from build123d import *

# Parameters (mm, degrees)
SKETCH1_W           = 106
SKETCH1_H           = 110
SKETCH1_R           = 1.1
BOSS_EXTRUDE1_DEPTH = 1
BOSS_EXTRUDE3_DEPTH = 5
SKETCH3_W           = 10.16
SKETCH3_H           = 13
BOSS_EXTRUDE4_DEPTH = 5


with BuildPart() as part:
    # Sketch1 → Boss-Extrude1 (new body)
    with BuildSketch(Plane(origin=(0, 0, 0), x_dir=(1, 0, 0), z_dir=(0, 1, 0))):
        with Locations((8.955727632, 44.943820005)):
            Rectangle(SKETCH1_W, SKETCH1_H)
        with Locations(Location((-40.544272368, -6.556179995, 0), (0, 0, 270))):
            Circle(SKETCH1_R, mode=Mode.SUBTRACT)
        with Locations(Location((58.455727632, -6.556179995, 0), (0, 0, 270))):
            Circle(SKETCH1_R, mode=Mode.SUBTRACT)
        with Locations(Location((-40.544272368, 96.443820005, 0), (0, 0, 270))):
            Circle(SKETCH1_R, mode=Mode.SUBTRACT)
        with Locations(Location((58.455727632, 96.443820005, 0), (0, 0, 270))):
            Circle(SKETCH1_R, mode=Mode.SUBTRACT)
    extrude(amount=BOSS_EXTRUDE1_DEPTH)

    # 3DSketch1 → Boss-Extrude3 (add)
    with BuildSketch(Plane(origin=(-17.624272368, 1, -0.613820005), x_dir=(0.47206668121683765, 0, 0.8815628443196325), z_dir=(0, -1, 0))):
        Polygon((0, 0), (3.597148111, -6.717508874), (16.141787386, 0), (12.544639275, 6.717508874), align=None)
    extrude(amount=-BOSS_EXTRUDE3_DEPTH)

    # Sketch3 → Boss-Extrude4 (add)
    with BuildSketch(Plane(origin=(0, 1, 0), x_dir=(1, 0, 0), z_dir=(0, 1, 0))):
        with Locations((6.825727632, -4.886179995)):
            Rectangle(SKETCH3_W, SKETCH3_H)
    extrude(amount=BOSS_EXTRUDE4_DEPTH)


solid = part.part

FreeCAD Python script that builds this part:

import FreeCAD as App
import Part
import Sketcher
from FreeCAD import Vector
Q = App.Units.Quantity

doc = App.newDocument("Part")
body = doc.addObject("PartDesign::Body", "Body")

sketch1 = body.newObject("Sketcher::SketchObject", "Sketch")
sketch1.AttachmentSupport = (doc.getObject("XZ_Plane"), [""])
sketch1.MapMode = "FlatFace"
sketch1.addGeometry([
    Part.LineSegment(Vector(-44, -99.9, 0), Vector(-44, 10.1, 0)),
    Part.LineSegment(Vector(-44, 10.1, 0), Vector(62, 10.1, 0)),
    Part.LineSegment(Vector(62, 10.1, 0), Vector(62, -99.9, 0)),
    Part.LineSegment(Vector(62, -99.9, 0), Vector(-44, -99.9, 0)),
    Part.Circle(Vector(-40.5, 6.6, 0), Vector(0, 0, 1), 1.1),
    Part.Circle(Vector(58.5, 6.6, 0), Vector(0, 0, 1), 1.1),
    Part.Circle(Vector(-40.5, -96.4, 0), Vector(0, 0, 1), 1.1),
    Part.Circle(Vector(58.5, -96.4, 0), Vector(0, 0, 1), 1.1),
], False)
sketch1.addConstraint([
    Sketcher.Constraint("Coincident", 0, 2, 1, 1),
    Sketcher.Constraint("Coincident", 1, 2, 2, 1),
    Sketcher.Constraint("Coincident", 2, 2, 3, 1),
    Sketcher.Constraint("Coincident", 3, 2, 0, 1),
    Sketcher.Constraint("Vertical", 0),
    Sketcher.Constraint("Horizontal", 1),
    Sketcher.Constraint("Vertical", 2),
    Sketcher.Constraint("Horizontal", 3),
    Sketcher.Constraint("Equal", 4, 5),
    Sketcher.Constraint("Equal", 5, 6),
    Sketcher.Constraint("Equal", 6, 7),
    Sketcher.Constraint("Horizontal", 4, 3, 5, 3),
    Sketcher.Constraint("Horizontal", 6, 3, 7, 3),
    Sketcher.Constraint("Vertical", 4, 3, 6, 3),
    Sketcher.Constraint("Vertical", 5, 3, 7, 3),
    Sketcher.Constraint("Diameter", 4, Q("2.2 mm")),
    Sketcher.Constraint("DistanceX", 1, 1, 1, 2, Q("106 mm")),
    Sketcher.Constraint("DistanceY", 0, 1, 0, 2, Q("110 mm")),
    Sketcher.Constraint("DistanceX", 4, 3, 5, 3, Q("99 mm")),
    Sketcher.Constraint("DistanceY", 6, 3, 4, 3, Q("103 mm")),
    Sketcher.Constraint("DistanceX", 0, 2, 4, 3, Q("3.5 mm")),
    Sketcher.Constraint("DistanceY", 4, 3, 0, 2, Q("3.5 mm")),
    Sketcher.Constraint("DistanceY", -1, 1, 4, 3, Q("6.55618 mm")),
    Sketcher.Constraint("DistanceX", 4, 3, -1, 1, Q("40.544272 mm")),
])
pad1 = body.newObject("PartDesign::Pad", "Pad")
pad1.Profile = sketch1
pad1.Length = 1
pad1.Reversed = True

sketch2 = body.newObject("Sketcher::SketchObject", "Sketch001")
sketch2.AttachmentSupport = (doc.getObject("XZ_Plane"), [""])
sketch2.MapMode = "FlatFace"
sketch2.AttachmentOffset = App.Placement(Vector(0, 0, -1), App.Rotation())
sketch2.addGeometry([
    Part.LineSegment(Vector(-18, -1, 0), Vector(-10, -1, 0)),
    Part.LineSegment(Vector(-10, -1, 0), Vector(-10, 14, 0)),
    Part.LineSegment(Vector(-10, 14, 0), Vector(-18, 14, 0)),
    Part.LineSegment(Vector(-18, 14, 0), Vector(-18, -1, 0)),
], False)
sketch2.addConstraint([
    Sketcher.Constraint("Coincident", 0, 2, 1, 1),
    Sketcher.Constraint("Coincident", 1, 2, 2, 1),
    Sketcher.Constraint("Coincident", 2, 2, 3, 1),
    Sketcher.Constraint("Coincident", 3, 2, 0, 1),
    Sketcher.Constraint("Horizontal", 0),
    Sketcher.Constraint("Vertical", 1),
    Sketcher.Constraint("Horizontal", 2),
    Sketcher.Constraint("Vertical", 3),
    Sketcher.Constraint("DistanceX", 0, 1, 0, 2, Q("7.62 mm")),
    Sketcher.Constraint("DistanceY", 1, 1, 1, 2, Q("14.23 mm")),
    Sketcher.Constraint("DistanceY", 0, 2, -1, 1, Q("0.61382 mm")),
    Sketcher.Constraint("DistanceX", 0, 2, -1, 1, Q("10.004272 mm")),
])
pad2 = body.newObject("PartDesign::Pad", "Pad001")
pad2.Profile = sketch2
pad2.Length = 5
pad2.Reversed = True

sketch3 = body.newObject("Sketcher::SketchObject", "Sketch002")
sketch3.AttachmentSupport = (doc.getObject("XZ_Plane"), [""])
sketch3.MapMode = "FlatFace"
sketch3.AttachmentOffset = App.Placement(Vector(0, 0, -1), App.Rotation())
sketch3.addGeometry([
    Part.LineSegment(Vector(2, -2, 0), Vector(2, 11, 0)),
    Part.LineSegment(Vector(2, 11, 0), Vector(12, 11, 0)),
    Part.LineSegment(Vector(12, 11, 0), Vector(12, -2, 0)),
    Part.LineSegment(Vector(12, -2, 0), Vector(2, -2, 0)),
], False)
sketch3.addConstraint([
    Sketcher.Constraint("Coincident", 0, 2, 1, 1),
    Sketcher.Constraint("Coincident", 1, 2, 2, 1),
    Sketcher.Constraint("Coincident", 2, 2, 3, 1),
    Sketcher.Constraint("Coincident", 3, 2, 0, 1),
    Sketcher.Constraint("Vertical", 0),
    Sketcher.Constraint("Horizontal", 1),
    Sketcher.Constraint("Vertical", 2),
    Sketcher.Constraint("Horizontal", 3),
    Sketcher.Constraint("DistanceY", 0, 1, 0, 2, Q("13 mm")),
    Sketcher.Constraint("DistanceX", 1, 1, 1, 2, Q("10.16 mm")),
    Sketcher.Constraint("DistanceY", -1, 1, 0, 2, Q("11.38618 mm")),
    Sketcher.Constraint("DistanceX", -1, 1, 0, 2, Q("1.745728 mm")),
])
pad3 = body.newObject("PartDesign::Pad", "Pad002")
pad3.Profile = sketch3
pad3.Length = 5
pad3.Reversed = True

doc.recompute()
